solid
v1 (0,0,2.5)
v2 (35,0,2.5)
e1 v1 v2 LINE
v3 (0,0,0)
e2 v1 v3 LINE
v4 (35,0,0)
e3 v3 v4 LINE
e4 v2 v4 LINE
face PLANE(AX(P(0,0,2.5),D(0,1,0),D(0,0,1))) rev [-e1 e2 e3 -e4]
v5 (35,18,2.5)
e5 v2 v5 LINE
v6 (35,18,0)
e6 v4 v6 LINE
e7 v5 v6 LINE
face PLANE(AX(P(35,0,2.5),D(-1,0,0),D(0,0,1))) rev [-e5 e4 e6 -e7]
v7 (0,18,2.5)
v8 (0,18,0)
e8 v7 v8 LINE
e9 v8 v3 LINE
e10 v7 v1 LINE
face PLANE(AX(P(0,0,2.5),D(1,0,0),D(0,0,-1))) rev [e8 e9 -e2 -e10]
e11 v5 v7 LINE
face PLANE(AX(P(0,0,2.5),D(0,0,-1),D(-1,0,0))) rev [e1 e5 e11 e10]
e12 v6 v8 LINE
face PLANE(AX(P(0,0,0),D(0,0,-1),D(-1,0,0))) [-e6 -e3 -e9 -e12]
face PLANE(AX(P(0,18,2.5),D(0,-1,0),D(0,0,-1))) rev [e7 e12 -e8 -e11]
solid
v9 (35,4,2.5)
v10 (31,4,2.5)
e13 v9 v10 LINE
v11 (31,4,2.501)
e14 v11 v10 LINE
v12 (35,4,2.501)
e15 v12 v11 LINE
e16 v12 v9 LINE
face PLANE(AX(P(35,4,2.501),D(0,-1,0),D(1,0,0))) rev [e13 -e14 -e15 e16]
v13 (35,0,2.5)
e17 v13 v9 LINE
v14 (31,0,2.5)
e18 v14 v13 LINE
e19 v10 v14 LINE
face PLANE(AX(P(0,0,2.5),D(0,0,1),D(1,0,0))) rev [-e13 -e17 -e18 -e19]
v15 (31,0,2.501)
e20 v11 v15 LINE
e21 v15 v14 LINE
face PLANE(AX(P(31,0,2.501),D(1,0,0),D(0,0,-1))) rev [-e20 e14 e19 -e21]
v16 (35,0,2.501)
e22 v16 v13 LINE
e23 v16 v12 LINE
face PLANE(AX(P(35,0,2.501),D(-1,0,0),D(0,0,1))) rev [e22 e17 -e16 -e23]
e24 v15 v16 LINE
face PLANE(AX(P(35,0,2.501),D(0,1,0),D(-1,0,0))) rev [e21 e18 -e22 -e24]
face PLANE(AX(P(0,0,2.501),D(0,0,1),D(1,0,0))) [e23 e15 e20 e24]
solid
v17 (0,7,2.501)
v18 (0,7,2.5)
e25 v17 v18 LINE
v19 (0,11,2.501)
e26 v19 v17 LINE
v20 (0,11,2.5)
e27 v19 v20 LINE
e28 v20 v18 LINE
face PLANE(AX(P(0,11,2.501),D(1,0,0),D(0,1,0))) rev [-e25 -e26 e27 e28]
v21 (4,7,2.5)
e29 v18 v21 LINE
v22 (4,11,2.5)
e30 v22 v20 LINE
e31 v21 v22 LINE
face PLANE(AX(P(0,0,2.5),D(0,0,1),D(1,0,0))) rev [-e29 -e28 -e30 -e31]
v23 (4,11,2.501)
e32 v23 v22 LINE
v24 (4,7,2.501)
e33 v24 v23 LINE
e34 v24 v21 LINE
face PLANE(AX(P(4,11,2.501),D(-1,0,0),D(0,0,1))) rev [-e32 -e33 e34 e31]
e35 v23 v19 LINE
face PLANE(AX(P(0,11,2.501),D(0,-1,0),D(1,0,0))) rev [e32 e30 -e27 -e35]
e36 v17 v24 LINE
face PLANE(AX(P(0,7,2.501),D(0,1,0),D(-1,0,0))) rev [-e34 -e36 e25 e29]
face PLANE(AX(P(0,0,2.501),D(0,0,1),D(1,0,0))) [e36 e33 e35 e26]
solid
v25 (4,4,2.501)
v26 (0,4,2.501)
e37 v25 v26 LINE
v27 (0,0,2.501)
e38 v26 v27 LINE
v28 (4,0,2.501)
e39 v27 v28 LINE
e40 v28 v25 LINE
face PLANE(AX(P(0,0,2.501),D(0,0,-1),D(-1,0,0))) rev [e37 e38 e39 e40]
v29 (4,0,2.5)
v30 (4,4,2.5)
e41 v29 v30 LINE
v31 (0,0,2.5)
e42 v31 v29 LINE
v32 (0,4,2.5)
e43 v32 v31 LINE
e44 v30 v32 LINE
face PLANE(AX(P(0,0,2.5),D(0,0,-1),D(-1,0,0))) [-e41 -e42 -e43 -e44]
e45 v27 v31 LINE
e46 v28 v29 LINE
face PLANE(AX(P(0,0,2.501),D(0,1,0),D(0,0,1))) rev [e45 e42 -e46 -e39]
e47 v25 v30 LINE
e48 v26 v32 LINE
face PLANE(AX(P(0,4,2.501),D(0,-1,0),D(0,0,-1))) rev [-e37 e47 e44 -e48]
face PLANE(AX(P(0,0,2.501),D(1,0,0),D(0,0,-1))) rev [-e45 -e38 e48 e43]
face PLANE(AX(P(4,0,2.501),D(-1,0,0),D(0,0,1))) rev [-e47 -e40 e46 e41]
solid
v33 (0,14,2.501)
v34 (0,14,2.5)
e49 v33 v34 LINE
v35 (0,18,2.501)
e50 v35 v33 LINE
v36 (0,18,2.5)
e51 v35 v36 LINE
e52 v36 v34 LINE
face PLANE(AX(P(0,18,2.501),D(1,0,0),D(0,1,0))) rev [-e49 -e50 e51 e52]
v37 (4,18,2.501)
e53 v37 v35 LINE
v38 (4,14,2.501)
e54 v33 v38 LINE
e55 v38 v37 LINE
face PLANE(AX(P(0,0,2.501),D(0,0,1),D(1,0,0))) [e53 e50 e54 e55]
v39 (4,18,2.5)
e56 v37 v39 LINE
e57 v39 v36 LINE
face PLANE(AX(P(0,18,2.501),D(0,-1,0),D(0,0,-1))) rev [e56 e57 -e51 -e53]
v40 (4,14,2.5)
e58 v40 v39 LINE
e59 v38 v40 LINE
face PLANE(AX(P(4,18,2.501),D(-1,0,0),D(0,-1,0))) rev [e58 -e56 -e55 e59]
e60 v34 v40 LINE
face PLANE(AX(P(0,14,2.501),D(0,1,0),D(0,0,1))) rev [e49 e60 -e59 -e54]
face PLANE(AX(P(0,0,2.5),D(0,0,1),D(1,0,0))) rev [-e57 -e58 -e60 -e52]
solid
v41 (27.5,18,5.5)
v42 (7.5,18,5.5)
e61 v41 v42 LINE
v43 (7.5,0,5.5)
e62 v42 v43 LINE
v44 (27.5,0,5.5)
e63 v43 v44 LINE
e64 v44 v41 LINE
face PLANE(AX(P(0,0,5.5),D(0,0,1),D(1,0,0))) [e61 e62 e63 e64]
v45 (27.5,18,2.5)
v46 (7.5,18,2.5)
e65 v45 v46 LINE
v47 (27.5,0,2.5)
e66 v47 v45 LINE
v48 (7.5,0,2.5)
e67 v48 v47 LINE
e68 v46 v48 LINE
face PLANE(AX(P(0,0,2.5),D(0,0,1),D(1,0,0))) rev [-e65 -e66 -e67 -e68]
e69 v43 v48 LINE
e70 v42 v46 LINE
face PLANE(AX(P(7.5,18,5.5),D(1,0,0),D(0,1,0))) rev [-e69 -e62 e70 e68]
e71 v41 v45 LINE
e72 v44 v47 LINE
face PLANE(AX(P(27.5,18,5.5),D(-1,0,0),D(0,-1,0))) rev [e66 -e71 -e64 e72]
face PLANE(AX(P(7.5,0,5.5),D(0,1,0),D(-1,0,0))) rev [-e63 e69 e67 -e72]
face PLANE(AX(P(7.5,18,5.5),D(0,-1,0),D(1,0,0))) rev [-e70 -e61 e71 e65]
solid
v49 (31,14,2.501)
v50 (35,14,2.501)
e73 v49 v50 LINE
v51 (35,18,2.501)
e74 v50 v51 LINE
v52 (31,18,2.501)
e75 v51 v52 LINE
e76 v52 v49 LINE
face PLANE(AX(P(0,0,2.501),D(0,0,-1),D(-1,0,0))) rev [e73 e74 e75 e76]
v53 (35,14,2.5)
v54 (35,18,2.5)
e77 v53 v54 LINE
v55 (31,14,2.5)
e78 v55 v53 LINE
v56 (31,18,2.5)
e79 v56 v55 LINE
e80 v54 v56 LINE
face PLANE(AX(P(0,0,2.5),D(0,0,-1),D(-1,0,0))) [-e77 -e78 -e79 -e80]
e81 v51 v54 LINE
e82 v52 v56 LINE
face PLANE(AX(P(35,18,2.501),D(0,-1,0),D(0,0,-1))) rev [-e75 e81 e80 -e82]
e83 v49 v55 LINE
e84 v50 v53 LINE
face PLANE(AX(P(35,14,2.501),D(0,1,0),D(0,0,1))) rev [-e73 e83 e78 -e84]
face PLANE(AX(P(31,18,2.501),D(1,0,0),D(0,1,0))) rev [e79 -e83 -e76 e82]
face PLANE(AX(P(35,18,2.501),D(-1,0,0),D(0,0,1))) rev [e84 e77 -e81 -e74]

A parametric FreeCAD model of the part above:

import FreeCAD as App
import Part
import Sketcher
from FreeCAD import Vector

doc = App.newDocument("Part")
params = doc.addObject("Spreadsheet::Sheet", "Params")
for row, (alias, value) in enumerate([
    ("sketch1_width", "35 mm"),
    ("sketch1_height", "18 mm"),
    ("pad1_length", "2.5 mm"),
    ("sketch2_width", "20 mm"),
    ("sketch2_height", "18 mm"),
    ("pad2_length", "3 mm"),
    ("sketch3_width", "4 mm"),
    ("pad3_length", "0.001 mm"),
    ("sketch4_width", "4 mm"),
    ("pad4_length", "0.001 mm"),
    ("sketch5_width", "4 mm"),
    ("pad5_length", "0.001 mm"),
    ("sketch6_width", "4 mm"),
    ("pad6_length", "0.001 mm"),
    ("sketch7_width", "4 mm"),
    ("pad7_length", "0.001 mm"),
], start=1):
    params.set(f"A{row}", alias)
    params.set(f"B{row}", "=" + value)
    params.setAlias(f"B{row}", alias)

body = doc.addObject("PartDesign::Body", "Body")

# Sketch on XY plane
sketch1 = body.newObject("Sketcher::SketchObject", "Sketch")
sketch1.AttachmentSupport = (doc.getObject("XY_Plane"), [""])
sketch1.MapMode = "FlatFace"
sketch1.addGeometry(Part.LineSegment(Vector(0, 18, 0), Vector(0, 0, 0)), False)
sketch1.addGeometry(Part.LineSegment(Vector(0, 0, 0), Vector(35, 0, 0)), False)
sketch1.addGeometry(Part.LineSegment(Vector(35, 0, 0), Vector(35, 18, 0)), False)
sketch1.addGeometry(Part.LineSegment(Vector(35, 18, 0), Vector(0, 18, 0)), False)
sketch1.addConstraint(Sketcher.Constraint("Coincident", 0, 2, 1, 1))
sketch1.addConstraint(Sketcher.Constraint("Coincident", 1, 2, 2, 1))
sketch1.addConstraint(Sketcher.Constraint("Coincident", 2, 2, 3, 1))
sketch1.addConstraint(Sketcher.Constraint("Coincident", 3, 2, 0, 1))
sketch1.addConstraint(Sketcher.Constraint("Vertical", 0))
sketch1.addConstraint(Sketcher.Constraint("Horizontal", 1))
sketch1.addConstraint(Sketcher.Constraint("Vertical", 2))
sketch1.addConstraint(Sketcher.Constraint("Horizontal", 3))
sketch1.addConstraint(Sketcher.Constraint("Coincident", 0, 2, -1, 1))
sketch1.addConstraint(Sketcher.Constraint("DistanceX", 1, 1, 1, 2, 35.0))
sketch1.addConstraint(Sketcher.Constraint("DistanceY", 0, 2, 0, 1, 18.0))
sketch1.setExpression("Constraints[9]", "Params.sketch1_width")
sketch1.setExpression("Constraints[10]", "Params.sketch1_height")
pad1 = body.newObject("PartDesign::Pad", "Pad")
pad1.Profile = sketch1
pad1.setExpression("Length", "Params.pad1_length")
body2 = doc.addObject("PartDesign::Body", "Body001")

# Sketch on XY plane
sketch2 = body2.newObject("Sketcher::SketchObject", "Sketch001")
sketch2.AttachmentSupport = (doc.getObject("XY_Plane001"), [""])
sketch2.MapMode = "FlatFace"
sketch2.AttachmentOffset = App.Placement(Vector(0, 0, 2.5), App.Rotation())
sketch2.addGeometry(Part.LineSegment(Vector(8, 18, 0), Vector(8, 0, 0)), False)
sketch2.addGeometry(Part.LineSegment(Vector(8, 0, 0), Vector(28, 0, 0)), False)
sketch2.addGeometry(Part.LineSegment(Vector(28, 0, 0), Vector(28, 18, 0)), False)
sketch2.addGeometry(Part.LineSegment(Vector(28, 18, 0), Vector(8, 18, 0)), False)
sketch2.addConstraint(Sketcher.Constraint("Coincident", 0, 2, 1, 1))
sketch2.addConstraint(Sketcher.Constraint("Coincident", 1, 2, 2, 1))
sketch2.addConstraint(Sketcher.Constraint("Coincident", 2, 2, 3, 1))
sketch2.addConstraint(Sketcher.Constraint("Coincident", 3, 2, 0, 1))
sketch2.addConstraint(Sketcher.Constraint("Vertical", 0))
sketch2.addConstraint(Sketcher.Constraint("Horizontal", 1))
sketch2.addConstraint(Sketcher.Constraint("Vertical", 2))
sketch2.addConstraint(Sketcher.Constraint("Horizontal", 3))
sketch2.addConstraint(Sketcher.Constraint("PointOnObject", 0, 2, -1))
sketch2.addConstraint(Sketcher.Constraint("DistanceX", 1, 1, 1, 2, 20.0))
sketch2.addConstraint(Sketcher.Constraint("DistanceY", 0, 2, 0, 1, 18.0))
sketch2.addConstraint(Sketcher.Constraint("DistanceX", -1, 1, 0, 2, 7.5))
sketch2.setExpression("Constraints[9]", "Params.sketch2_width")
sketch2.setExpression("Constraints[10]", "Params.sketch2_height")
pad2 = body2.newObject("PartDesign::Pad", "Pad001")
pad2.Profile = sketch2
pad2.setExpression("Length", "Params.pad2_length")
body3 = doc.addObject("PartDesign::Body", "Body002")

# Sketch on XY plane
sketch3 = body3.newObject("Sketcher::SketchObject", "Sketch002")
sketch3.AttachmentSupport = (doc.getObject("XY_Plane002"), [""])
sketch3.MapMode = "FlatFace"
sketch3.AttachmentOffset = App.Placement(Vector(0, 0, 2.5), App.Rotation())
sketch3.addGeometry(Part.LineSegment(Vector(0, 18, 0), Vector(0, 14, 0)), False)
sketch3.addGeometry(Part.LineSegment(Vector(0, 14, 0), Vector(4, 14, 0)), False)
sketch3.addGeometry(Part.LineSegment(Vector(4, 14, 0), Vector(4, 18, 0)), False)
sketch3.addGeometry(Part.LineSegment(Vector(4, 18, 0), Vector(0, 18, 0)), False)
sketch3.addConstraint(Sketcher.Constraint("Coincident", 0, 2, 1, 1))
sketch3.addConstraint(Sketcher.Constraint("Coincident", 1, 2, 2, 1))
sketch3.addConstraint(Sketcher.Constraint("Coincident", 2, 2, 3, 1))
sketch3.addConstraint(Sketcher.Constraint("Coincident", 3, 2, 0, 1))
sketch3.addConstraint(Sketcher.Constraint("Vertical", 0))
sketch3.addConstraint(Sketcher.Constraint("Horizontal", 1))
sketch3.addConstraint(Sketcher.Constraint("Vertical", 2))
sketch3.addConstraint(Sketcher.Constraint("Horizontal", 3))
sketch3.addConstraint(Sketcher.Constraint("PointOnObject", 0, 2, -2))
sketch3.addConstraint(Sketcher.Constraint("Equal", 3, 0))
sketch3.addConstraint(Sketcher.Constraint("DistanceX", 1, 1, 1, 2, 4.0))
sketch3.addConstraint(Sketcher.Constraint("DistanceY", -1, 1, 0, 2, 14.0))
sketch3.setExpression("Constraints[10]", "Params.sketch3_width")
pad3 = body3.newObject("PartDesign::Pad", "Pad002")
pad3.Profile = sketch3
pad3.setExpression("Length", "Params.pad3_length")
body4 = doc.addObject("PartDesign::Body", "Body003")

# Sketch on XY plane
sketch4 = body4.newObject("Sketcher::SketchObject", "Sketch003")
sketch4.AttachmentSupport = (doc.getObject("XY_Plane003"), [""])
sketch4.MapMode = "FlatFace"
sketch4.AttachmentOffset = App.Placement(Vector(0, 0, 2.5), App.Rotation())
sketch4.addGeometry(Part.LineSegment(Vector(0, 11, 0), Vector(0, 7, 0)), False)
sketch4.addGeometry(Part.LineSegment(Vector(0, 7, 0), Vector(4, 7, 0)), False)
sketch4.addGeometry(Part.LineSegment(Vector(4, 7, 0), Vector(4, 11, 0)), False)
sketch4.addGeometry(Part.LineSegment(Vector(4, 11, 0), Vector(0, 11, 0)), False)
sketch4.addConstraint(Sketcher.Constraint("Coincident", 0, 2, 1, 1))
sketch4.addConstraint(Sketcher.Constraint("Coincident", 1, 2, 2, 1))
sketch4.addConstraint(Sketcher.Constraint("Coincident", 2, 2, 3, 1))
sketch4.addConstraint(Sketcher.Constraint("Coincident", 3, 2, 0, 1))
sketch4.addConstraint(Sketcher.Constraint("Vertical", 0))
sketch4.addConstraint(Sketcher.Constraint("Horizontal", 1))
sketch4.addConstraint(Sketcher.Constraint("Vertical", 2))
sketch4.addConstraint(Sketcher.Constraint("Horizontal", 3))
sketch4.addConstraint(Sketcher.Constraint("PointOnObject", 0, 2, -2))
sketch4.addConstraint(Sketcher.Constraint("Equal", 3, 0))
sketch4.addConstraint(Sketcher.Constraint("DistanceX", 1, 1, 1, 2, 4.0))
sketch4.addConstraint(Sketcher.Constraint("DistanceY", -1, 1, 0, 2, 7.0))
sketch4.setExpression("Constraints[10]", "Params.sketch4_width")
pad4 = body4.newObject("PartDesign::Pad", "Pad003")
pad4.Profile = sketch4
pad4.setExpression("Length", "Params.pad4_length")
body5 = doc.addObject("PartDesign::Body", "Body004")

# Sketch on XY plane
sketch5 = body5.newObject("Sketcher::SketchObject", "Sketch004")
sketch5.AttachmentSupport = (doc.getObject("XY_Plane004"), [""])
sketch5.MapMode = "FlatFace"
sketch5.AttachmentOffset = App.Placement(Vector(0, 0, 2.5), App.Rotation())
sketch5.addGeometry(Part.LineSegment(Vector(0, 4, 0), Vector(0, 0, 0)), False)
sketch5.addGeometry(Part.LineSegment(Vector(0, 0, 0), Vector(4, 0, 0)), False)
sketch5.addGeometry(Part.LineSegment(Vector(4, 0, 0), Vector(4, 4, 0)), False)
sketch5.addGeometry(Part.LineSegment(Vector(4, 4, 0), Vector(0, 4, 0)), False)
sketch5.addConstraint(Sketcher.Constraint("Coincident", 0, 2, 1, 1))
sketch5.addConstraint(Sketcher.Constraint("Coincident", 1, 2, 2, 1))
sketch5.addConstraint(Sketcher.Constraint("Coincident", 2, 2, 3, 1))
sketch5.addConstraint(Sketcher.Constraint("Coincident", 3, 2, 0, 1))
sketch5.addConstraint(Sketcher.Constraint("Vertical", 0))
sketch5.addConstraint(Sketcher.Constraint("Horizontal", 1))
sketch5.addConstraint(Sketcher.Constraint("Vertical", 2))
sketch5.addConstraint(Sketcher.Constraint("Horizontal", 3))
sketch5.addConstraint(Sketcher.Constraint("Coincident", 0, 2, -1, 1))
sketch5.addConstraint(Sketcher.Constraint("Equal", 3, 0))
sketch5.addConstraint(Sketcher.Constraint("DistanceX", 1, 1, 1, 2, 4.0))
sketch5.setExpression("Constraints[10]", "Params.sketch5_width")
pad5 = body5.newObject("PartDesign::Pad", "Pad004")
pad5.Profile = sketch5
pad5.setExpression("Length", "Params.pad5_length")
body6 = doc.addObject("PartDesign::Body", "Body005")

# Sketch on XY plane
sketch6 = body6.newObject("Sketcher::SketchObject", "Sketch005")
sketch6.AttachmentSupport = (doc.getObject("XY_Plane005"), [""])
sketch6.MapMode = "FlatFace"
sketch6.AttachmentOffset = App.Placement(Vector(0, 0, 2.5), App.Rotation())
sketch6.addGeometry(Part.LineSegment(Vector(31, 18, 0), Vector(31, 14, 0)), False)
sketch6.addGeometry(Part.LineSegment(Vector(31, 14, 0), Vector(35, 14, 0)), False)
sketch6.addGeometry(Part.LineSegment(Vector(35, 14, 0), Vector(35, 18, 0)), False)
sketch6.addGeometry(Part.LineSegment(Vector(35, 18, 0), Vector(31, 18, 0)), False)
sketch6.addConstraint(Sketcher.Constraint("Coincident", 0, 2, 1, 1))
sketch6.addConstraint(Sketcher.Constraint("Coincident", 1, 2, 2, 1))
sketch6.addConstraint(Sketcher.Constraint("Coincident", 2, 2, 3, 1))
sketch6.addConstraint(Sketcher.Constraint("Coincident", 3, 2, 0, 1))
sketch6.addConstraint(Sketcher.Constraint("Vertical", 0))
sketch6.addConstraint(Sketcher.Constraint("Horizontal", 1))
sketch6.addConstraint(Sketcher.Constraint("Vertical", 2))
sketch6.addConstraint(Sketcher.Constraint("Horizontal", 3))
sketch6.addConstraint(Sketcher.Constraint("Equal", 3, 0))
sketch6.addConstraint(Sketcher.Constraint("DistanceX", 1, 1, 1, 2, 4.0))
sketch6.addConstraint(Sketcher.Constraint("DistanceX", -1, 1, 0, 2, 31.0))
sketch6.addConstraint(Sketcher.Constraint("DistanceY", -1, 1, 0, 2, 14.0))
sketch6.setExpression("Constraints[9]", "Params.sketch6_width")
pad6 = body6.newObject("PartDesign::Pad", "Pad005")
pad6.Profile = sketch6
pad6.setExpression("Length", "Params.pad6_length")
body7 = doc.addObject("PartDesign::Body", "Body006")

# Sketch on XY plane
sketch7 = body7.newObject("Sketcher::SketchObject", "Sketch006")
sketch7.AttachmentSupport = (doc.getObject("XY_Plane006"), [""])
sketch7.MapMode = "FlatFace"
sketch7.AttachmentOffset = App.Placement(Vector(0, 0, 2.5), App.Rotation())
sketch7.addGeometry(Part.LineSegment(Vector(31, 4, 0), Vector(31, 0, 0)), False)
sketch7.addGeometry(Part.LineSegment(Vector(31, 0, 0), Vector(35, 0, 0)), False)
sketch7.addGeometry(Part.LineSegment(Vector(35, 0, 0), Vector(35, 4, 0)), False)
sketch7.addGeometry(Part.LineSegment(Vector(35, 4, 0), Vector(31, 4, 0)), False)
sketch7.addConstraint(Sketcher.Constraint("Coincident", 0, 2, 1, 1))
sketch7.addConstraint(Sketcher.Constraint("Coincident", 1, 2, 2, 1))
sketch7.addConstraint(Sketcher.Constraint("Coincident", 2, 2, 3, 1))
sketch7.addConstraint(Sketcher.Constraint("Coincident", 3, 2, 0, 1))
sketch7.addConstraint(Sketcher.Constraint("Vertical", 0))
sketch7.addConstraint(Sketcher.Constraint("Horizontal", 1))
sketch7.addConstraint(Sketcher.Constraint("Vertical", 2))
sketch7.addConstraint(Sketcher.Constraint("Horizontal", 3))
sketch7.addConstraint(Sketcher.Constraint("PointOnObject", 0, 2, -1))
sketch7.addConstraint(Sketcher.Constraint("Equal", 3, 0))
sketch7.addConstraint(Sketcher.Constraint("DistanceX", 1, 1, 1, 2, 4.0))
sketch7.addConstraint(Sketcher.Constraint("DistanceX", -1, 1, 0, 2, 31.0))
sketch7.setExpression("Constraints[10]", "Params.sketch7_width")
pad7 = body7.newObject("PartDesign::Pad", "Pad006")
pad7.Profile = sketch7
pad7.setExpression("Length", "Params.pad7_length")

doc.recompute()
